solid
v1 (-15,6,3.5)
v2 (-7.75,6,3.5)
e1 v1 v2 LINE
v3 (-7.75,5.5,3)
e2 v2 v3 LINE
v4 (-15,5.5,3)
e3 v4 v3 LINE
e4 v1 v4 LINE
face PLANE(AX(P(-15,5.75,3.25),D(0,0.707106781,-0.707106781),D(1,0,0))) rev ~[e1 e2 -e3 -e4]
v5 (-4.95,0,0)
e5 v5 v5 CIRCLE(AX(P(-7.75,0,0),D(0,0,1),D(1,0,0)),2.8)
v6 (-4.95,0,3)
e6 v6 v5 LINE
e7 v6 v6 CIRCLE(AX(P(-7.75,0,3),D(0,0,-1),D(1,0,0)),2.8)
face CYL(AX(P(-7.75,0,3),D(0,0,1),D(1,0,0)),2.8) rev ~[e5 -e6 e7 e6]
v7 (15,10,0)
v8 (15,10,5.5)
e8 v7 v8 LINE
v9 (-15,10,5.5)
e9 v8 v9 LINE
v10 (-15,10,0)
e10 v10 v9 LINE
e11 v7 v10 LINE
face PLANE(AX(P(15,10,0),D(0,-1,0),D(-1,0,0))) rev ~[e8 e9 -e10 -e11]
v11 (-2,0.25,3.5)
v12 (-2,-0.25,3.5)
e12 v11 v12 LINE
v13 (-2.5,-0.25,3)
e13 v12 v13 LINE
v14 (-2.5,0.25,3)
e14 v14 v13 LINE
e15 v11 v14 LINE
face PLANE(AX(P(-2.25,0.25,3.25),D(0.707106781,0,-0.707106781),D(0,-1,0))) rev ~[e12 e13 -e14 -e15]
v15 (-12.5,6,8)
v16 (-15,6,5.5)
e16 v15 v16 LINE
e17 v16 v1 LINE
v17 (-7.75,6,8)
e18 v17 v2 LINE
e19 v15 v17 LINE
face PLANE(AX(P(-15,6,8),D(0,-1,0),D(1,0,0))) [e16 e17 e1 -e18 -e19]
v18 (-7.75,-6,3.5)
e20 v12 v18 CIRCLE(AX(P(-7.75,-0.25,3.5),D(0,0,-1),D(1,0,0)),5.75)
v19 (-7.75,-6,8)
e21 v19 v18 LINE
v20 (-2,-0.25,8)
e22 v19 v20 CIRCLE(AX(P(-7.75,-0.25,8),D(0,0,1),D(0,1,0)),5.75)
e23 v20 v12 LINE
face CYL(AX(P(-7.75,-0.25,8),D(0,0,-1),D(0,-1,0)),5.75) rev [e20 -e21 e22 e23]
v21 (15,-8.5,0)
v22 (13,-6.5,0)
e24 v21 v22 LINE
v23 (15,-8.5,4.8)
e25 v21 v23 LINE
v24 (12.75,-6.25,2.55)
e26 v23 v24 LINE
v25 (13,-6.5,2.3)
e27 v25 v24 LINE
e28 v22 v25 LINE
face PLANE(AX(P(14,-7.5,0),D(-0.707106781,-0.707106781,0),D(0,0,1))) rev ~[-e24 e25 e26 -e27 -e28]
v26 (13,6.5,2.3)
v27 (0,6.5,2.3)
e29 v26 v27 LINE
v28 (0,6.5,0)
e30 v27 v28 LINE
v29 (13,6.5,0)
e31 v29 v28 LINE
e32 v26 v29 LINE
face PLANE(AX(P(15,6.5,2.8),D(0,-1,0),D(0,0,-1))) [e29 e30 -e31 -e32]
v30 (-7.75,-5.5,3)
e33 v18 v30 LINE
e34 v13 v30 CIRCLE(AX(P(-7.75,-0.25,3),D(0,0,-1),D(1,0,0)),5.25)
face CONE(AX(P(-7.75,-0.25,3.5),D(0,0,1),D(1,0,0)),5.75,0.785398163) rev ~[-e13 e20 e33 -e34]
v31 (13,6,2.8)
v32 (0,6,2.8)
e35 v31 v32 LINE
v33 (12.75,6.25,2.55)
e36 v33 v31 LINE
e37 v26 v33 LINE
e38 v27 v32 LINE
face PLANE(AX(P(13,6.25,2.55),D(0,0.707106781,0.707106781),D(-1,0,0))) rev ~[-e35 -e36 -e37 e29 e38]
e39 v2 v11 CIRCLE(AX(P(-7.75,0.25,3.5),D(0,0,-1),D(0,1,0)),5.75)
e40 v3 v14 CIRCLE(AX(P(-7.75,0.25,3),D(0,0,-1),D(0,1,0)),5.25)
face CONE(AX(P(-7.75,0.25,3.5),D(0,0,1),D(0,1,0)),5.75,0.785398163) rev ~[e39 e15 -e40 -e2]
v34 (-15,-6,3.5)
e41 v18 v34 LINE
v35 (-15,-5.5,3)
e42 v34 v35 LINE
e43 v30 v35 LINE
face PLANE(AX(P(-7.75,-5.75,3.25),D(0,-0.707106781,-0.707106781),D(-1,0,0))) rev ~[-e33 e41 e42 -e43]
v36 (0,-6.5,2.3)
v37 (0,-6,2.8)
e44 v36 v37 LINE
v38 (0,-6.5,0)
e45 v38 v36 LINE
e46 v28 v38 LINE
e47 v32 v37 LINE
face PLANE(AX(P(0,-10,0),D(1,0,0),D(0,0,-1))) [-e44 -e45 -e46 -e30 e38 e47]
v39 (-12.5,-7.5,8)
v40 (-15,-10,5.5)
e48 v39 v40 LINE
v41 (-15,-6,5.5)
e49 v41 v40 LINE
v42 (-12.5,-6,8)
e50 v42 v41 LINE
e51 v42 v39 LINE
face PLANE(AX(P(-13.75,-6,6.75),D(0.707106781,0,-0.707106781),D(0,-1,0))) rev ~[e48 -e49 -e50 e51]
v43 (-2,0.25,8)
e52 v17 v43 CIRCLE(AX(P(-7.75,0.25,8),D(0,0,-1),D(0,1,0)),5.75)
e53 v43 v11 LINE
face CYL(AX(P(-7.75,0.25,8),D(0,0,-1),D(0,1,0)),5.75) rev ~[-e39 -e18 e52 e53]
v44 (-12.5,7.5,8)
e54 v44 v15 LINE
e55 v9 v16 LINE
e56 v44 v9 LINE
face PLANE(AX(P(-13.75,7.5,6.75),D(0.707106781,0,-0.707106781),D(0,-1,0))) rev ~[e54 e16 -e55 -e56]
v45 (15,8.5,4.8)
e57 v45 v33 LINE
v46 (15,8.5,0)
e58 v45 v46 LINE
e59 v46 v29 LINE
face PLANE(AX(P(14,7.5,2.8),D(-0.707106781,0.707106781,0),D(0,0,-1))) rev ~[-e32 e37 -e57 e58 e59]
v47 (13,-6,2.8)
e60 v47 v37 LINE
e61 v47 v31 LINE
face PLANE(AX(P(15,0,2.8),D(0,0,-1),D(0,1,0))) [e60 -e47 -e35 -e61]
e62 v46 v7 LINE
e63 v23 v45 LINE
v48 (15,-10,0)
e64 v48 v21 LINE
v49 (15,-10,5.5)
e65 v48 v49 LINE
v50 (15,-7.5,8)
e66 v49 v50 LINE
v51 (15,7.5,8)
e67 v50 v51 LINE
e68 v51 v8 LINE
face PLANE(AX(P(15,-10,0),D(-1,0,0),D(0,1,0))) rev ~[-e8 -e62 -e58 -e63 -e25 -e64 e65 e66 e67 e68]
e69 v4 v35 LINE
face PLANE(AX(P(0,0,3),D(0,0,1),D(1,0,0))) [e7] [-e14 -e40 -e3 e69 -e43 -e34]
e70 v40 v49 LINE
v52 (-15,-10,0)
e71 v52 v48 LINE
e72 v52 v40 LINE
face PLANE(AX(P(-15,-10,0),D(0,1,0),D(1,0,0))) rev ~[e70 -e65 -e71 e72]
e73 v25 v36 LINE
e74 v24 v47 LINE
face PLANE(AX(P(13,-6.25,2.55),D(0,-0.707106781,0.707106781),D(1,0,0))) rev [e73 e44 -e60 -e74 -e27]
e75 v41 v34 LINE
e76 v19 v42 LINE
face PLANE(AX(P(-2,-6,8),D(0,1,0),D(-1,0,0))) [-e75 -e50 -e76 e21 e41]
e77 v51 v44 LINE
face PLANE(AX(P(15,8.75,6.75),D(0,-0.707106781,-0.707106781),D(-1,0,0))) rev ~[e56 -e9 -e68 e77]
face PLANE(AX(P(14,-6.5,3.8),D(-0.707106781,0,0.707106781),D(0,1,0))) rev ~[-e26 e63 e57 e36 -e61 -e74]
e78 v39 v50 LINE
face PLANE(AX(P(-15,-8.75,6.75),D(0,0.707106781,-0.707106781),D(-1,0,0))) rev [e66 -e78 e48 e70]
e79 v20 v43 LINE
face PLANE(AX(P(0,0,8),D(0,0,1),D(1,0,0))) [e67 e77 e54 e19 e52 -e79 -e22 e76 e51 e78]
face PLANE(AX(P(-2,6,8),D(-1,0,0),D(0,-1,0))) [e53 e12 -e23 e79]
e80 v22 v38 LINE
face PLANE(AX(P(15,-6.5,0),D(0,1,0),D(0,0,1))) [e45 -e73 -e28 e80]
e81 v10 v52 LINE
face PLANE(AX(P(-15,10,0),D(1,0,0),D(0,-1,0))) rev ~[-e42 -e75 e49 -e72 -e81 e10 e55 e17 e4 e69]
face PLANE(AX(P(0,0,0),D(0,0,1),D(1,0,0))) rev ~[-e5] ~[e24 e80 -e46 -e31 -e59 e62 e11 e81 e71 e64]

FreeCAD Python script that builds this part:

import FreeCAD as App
import Part
import Sketcher


def edges_at(feature, points):
    """Names of the edges that pass closest to the given points."""
    edges = feature.Shape.Edges
    near = lambda p: min(range(len(edges)), key=lambda i: edges[i].distToShape(Part.Vertex(*p))[0])
    return sorted({f"Edge{near(p) + 1}" for p in points})

doc = App.newDocument("Part")
body = doc.addObject("PartDesign::Body", "Body")

sketch1 = body.newObject("Sketcher::SketchObject", "Sketch")
sketch1.AttachmentSupport = (doc.getObject("XY_Plane"), [""])
sketch1.MapMode = "FlatFace"
sketch1.addGeometry(Part.LineSegment(App.Vector(-15, 10, 0), App.Vector(-15, -10, 0)), False)
sketch1.addGeometry(Part.LineSegment(App.Vector(-15, -10, 0), App.Vector(15, -10, 0)), False)
sketch1.addGeometry(Part.LineSegment(App.Vector(15, -10, 0), App.Vector(15, 10, 0)), False)
sketch1.addGeometry(Part.LineSegment(App.Vector(15, 10, 0), App.Vector(-15, 10, 0)), False)
sketch1.addConstraint(Sketcher.Constraint("Coincident", 0, 2, 1, 1))
sketch1.addConstraint(Sketcher.Constraint("Coincident", 1, 2, 2, 1))
sketch1.addConstraint(Sketcher.Constraint("Coincident", 2, 2, 3, 1))
sketch1.addConstraint(Sketcher.Constraint("Coincident", 3, 2, 0, 1))
sketch1.addConstraint(Sketcher.Constraint("Vertical", 0))
sketch1.addConstraint(Sketcher.Constraint("Horizontal", 1))
sketch1.addConstraint(Sketcher.Constraint("Vertical", 2))
sketch1.addConstraint(Sketcher.Constraint("Horizontal", 3))
sketch1.addConstraint(Sketcher.Constraint("Symmetric", 0, 2, 2, 2, -1, 1))
sketch1.addConstraint(Sketcher.Constraint("DistanceX", 1, 1, 1, 2, 30.0))
sketch1.addConstraint(Sketcher.Constraint("DistanceY", 0, 2, 0, 1, 20.0))
pad1 = body.newObject("PartDesign::Pad", "Pad")
pad1.Profile = sketch1
pad1.Length = 8

sketch2 = body.newObject("Sketcher::SketchObject", "Sketch001")
sketch2.AttachmentSupport = (doc.getObject("YZ_Plane"), [""])
sketch2.MapMode = "FlatFace"
sketch2.AttachmentOffset = App.Placement(App.Vector(0, 0, 15), App.Rotation())
sketch2.addGeometry(Part.LineSegment(App.Vector(6.5, 2.8, 0), App.Vector(-6.5, 2.8, 0)), False)
sketch2.addGeometry(Part.LineSegment(App.Vector(-6.5, 2.8, 0), App.Vector(-6.5, 0, 0)), False)
sketch2.addGeometry(Part.LineSegment(App.Vector(-6.5, 0, 0), App.Vector(6.5, 0, 0)), False)
sketch2.addGeometry(Part.LineSegment(App.Vector(6.5, 0, 0), App.Vector(6.5, 2.8, 0)), False)
sketch2.addConstraint(Sketcher.Constraint("Coincident", 0, 2, 1, 1))
sketch2.addConstraint(Sketcher.Constraint("Coincident", 1, 2, 2, 1))
sketch2.addConstraint(Sketcher.Constraint("Coincident", 2, 2, 3, 1))
sketch2.addConstraint(Sketcher.Constraint("Coincident", 3, 2, 0, 1))
sketch2.addConstraint(Sketcher.Constraint("Horizontal", 0))
sketch2.addConstraint(Sketcher.Constraint("Vertical", 1))
sketch2.addConstraint(Sketcher.Constraint("Horizontal", 2))
sketch2.addConstraint(Sketcher.Constraint("Vertical", 3))
sketch2.addConstraint(Sketcher.Constraint("Symmetric", 1, 2, 2, 2, -1, 1))
sketch2.addConstraint(Sketcher.Constraint("DistanceX", 0, 2, 0, 1, 13.0))
sketch2.addConstraint(Sketcher.Constraint("DistanceY", 1, 2, 1, 1, 2.8))
pocket1 = body.newObject("PartDesign::Pocket", "Pocket")
pocket1.Profile = sketch2
pocket1.Length = 15
doc.recompute()

chamfer = body.newObject("PartDesign::Chamfer", "Chamfer")
chamfer.Base = (pocket1, edges_at(pocket1, [(15, 0, 2.8), (15, 6.5, 1.4), (15, -6.5, 1.4)]))
chamfer.Size = 2
doc.recompute()

chamfer2 = body.newObject("PartDesign::Chamfer", "Chamfer001")
chamfer2.Base = (chamfer, edges_at(chamfer, [(6.5, 6.5, 2.8), (6.5, -6.5, 2.8)]))
chamfer2.Size = 0.5

sketch3 = body.newObject("Sketcher::SketchObject", "Sketch002")
sketch3.AttachmentSupport = (doc.getObject("XY_Plane"), [""])
sketch3.MapMode = "FlatFace"
sketch3.AttachmentOffset = App.Placement(App.Vector(0, 0, 8), App.Rotation())
sketch3.addGeometry(Part.LineSegment(App.Vector(-15, 6, 0), App.Vector(-15, -6, 0)), False)
sketch3.addGeometry(Part.LineSegment(App.Vector(-15, -6, 0), App.Vector(-2, -6, 0)), False)
sketch3.addGeometry(Part.LineSegment(App.Vector(-2, -6, 0), App.Vector(-2, 6, 0)), False)
sketch3.addGeometry(Part.LineSegment(App.Vector(-2, 6, 0), App.Vector(-15, 6, 0)), False)
sketch3.addConstraint(Sketcher.Constraint("Coincident", 0, 2, 1, 1))
sketch3.addConstraint(Sketcher.Constraint("Coincident", 1, 2, 2, 1))
sketch3.addConstraint(Sketcher.Constraint("Coincident", 2, 2, 3, 1))
sketch3.addConstraint(Sketcher.Constraint("Coincident", 3, 2, 0, 1))
sketch3.addConstraint(Sketcher.Constraint("Vertical", 0))
sketch3.addConstraint(Sketcher.Constraint("Horizontal", 1))
sketch3.addConstraint(Sketcher.Constraint("Vertical", 2))
sketch3.addConstraint(Sketcher.Constraint("Horizontal", 3))
sketch3.addConstraint(Sketcher.Constraint("DistanceY", 0, 2, 0, 1, 12.0))
sketch3.addConstraint(Sketcher.Constraint("DistanceX", 1, 2, -1, 1, 2.0))
sketch3.addConstraint(Sketcher.Constraint("DistanceX", 1, 1, 1, 2, 13.0))
sketch3.addConstraint(Sketcher.Constraint("DistanceY", 0, 2, -1, 1, 6.0))
pocket2 = body.newObject("PartDesign::Pocket", "Pocket001")
pocket2.Profile = sketch3
pocket2.Length = 5
doc.recompute()

chamfer3 = body.newObject("PartDesign::Chamfer", "Chamfer002")
chamfer3.Base = (pocket2, edges_at(pocket2, [(0, 10, 8), (0, -10, 8)]))
chamfer3.Size = 2.5
doc.recompute()

fillet = body.newObject("PartDesign::Fillet", "Fillet")
fillet.Base = (chamfer3, edges_at(chamfer3, [(-2, 6, 5.5), (-2, -6, 5.5)]))
fillet.Radius = 5.75
doc.recompute()

chamfer4 = body.newObject("PartDesign::Chamfer", "Chamfer003")
chamfer4.Base = (fillet, edges_at(fillet, [(-15, -6.75, 8), (-15, 6.75, 8)]))
chamfer4.Size = 2.5

sketch4 = body.newObject("Sketcher::SketchObject", "Sketch003")
sketch4.AttachmentSupport = (doc.getObject("XY_Plane"), [""])
sketch4.MapMode = "FlatFace"
sketch4.AttachmentOffset = App.Placement(App.Vector(0, 0, 3), App.Rotation())
sketch4.addGeometry(Part.Circle(App.Vector(-7.75, 0, 0), App.Vector(0, 0, 1), 2.8), False)
sketch4.addConstraint(Sketcher.Constraint("PointOnObject", 0, 3, -1))
sketch4.addConstraint(Sketcher.Constraint("Diameter", 0, 5.6))
sketch4.addConstraint(Sketcher.Constraint("DistanceX", 0, 3, -1, 1, 7.75))
pocket3 = body.newObject("PartDesign::Pocket", "Pocket002")
pocket3.Profile = sketch4
pocket3.Length = 5
doc.recompute()

chamfer5 = body.newObject("PartDesign::Chamfer", "Chamfer004")
chamfer5.Base = (pocket3, edges_at(pocket3, [
    (-3.684, 4.316, 3),
    (-11.375, 6, 3),
    (-2, 0, 3),
    (-3.684, -4.316, 3),
    (-11.375, -6, 3),
]))
chamfer5.Size = 0.5

doc.recompute()
